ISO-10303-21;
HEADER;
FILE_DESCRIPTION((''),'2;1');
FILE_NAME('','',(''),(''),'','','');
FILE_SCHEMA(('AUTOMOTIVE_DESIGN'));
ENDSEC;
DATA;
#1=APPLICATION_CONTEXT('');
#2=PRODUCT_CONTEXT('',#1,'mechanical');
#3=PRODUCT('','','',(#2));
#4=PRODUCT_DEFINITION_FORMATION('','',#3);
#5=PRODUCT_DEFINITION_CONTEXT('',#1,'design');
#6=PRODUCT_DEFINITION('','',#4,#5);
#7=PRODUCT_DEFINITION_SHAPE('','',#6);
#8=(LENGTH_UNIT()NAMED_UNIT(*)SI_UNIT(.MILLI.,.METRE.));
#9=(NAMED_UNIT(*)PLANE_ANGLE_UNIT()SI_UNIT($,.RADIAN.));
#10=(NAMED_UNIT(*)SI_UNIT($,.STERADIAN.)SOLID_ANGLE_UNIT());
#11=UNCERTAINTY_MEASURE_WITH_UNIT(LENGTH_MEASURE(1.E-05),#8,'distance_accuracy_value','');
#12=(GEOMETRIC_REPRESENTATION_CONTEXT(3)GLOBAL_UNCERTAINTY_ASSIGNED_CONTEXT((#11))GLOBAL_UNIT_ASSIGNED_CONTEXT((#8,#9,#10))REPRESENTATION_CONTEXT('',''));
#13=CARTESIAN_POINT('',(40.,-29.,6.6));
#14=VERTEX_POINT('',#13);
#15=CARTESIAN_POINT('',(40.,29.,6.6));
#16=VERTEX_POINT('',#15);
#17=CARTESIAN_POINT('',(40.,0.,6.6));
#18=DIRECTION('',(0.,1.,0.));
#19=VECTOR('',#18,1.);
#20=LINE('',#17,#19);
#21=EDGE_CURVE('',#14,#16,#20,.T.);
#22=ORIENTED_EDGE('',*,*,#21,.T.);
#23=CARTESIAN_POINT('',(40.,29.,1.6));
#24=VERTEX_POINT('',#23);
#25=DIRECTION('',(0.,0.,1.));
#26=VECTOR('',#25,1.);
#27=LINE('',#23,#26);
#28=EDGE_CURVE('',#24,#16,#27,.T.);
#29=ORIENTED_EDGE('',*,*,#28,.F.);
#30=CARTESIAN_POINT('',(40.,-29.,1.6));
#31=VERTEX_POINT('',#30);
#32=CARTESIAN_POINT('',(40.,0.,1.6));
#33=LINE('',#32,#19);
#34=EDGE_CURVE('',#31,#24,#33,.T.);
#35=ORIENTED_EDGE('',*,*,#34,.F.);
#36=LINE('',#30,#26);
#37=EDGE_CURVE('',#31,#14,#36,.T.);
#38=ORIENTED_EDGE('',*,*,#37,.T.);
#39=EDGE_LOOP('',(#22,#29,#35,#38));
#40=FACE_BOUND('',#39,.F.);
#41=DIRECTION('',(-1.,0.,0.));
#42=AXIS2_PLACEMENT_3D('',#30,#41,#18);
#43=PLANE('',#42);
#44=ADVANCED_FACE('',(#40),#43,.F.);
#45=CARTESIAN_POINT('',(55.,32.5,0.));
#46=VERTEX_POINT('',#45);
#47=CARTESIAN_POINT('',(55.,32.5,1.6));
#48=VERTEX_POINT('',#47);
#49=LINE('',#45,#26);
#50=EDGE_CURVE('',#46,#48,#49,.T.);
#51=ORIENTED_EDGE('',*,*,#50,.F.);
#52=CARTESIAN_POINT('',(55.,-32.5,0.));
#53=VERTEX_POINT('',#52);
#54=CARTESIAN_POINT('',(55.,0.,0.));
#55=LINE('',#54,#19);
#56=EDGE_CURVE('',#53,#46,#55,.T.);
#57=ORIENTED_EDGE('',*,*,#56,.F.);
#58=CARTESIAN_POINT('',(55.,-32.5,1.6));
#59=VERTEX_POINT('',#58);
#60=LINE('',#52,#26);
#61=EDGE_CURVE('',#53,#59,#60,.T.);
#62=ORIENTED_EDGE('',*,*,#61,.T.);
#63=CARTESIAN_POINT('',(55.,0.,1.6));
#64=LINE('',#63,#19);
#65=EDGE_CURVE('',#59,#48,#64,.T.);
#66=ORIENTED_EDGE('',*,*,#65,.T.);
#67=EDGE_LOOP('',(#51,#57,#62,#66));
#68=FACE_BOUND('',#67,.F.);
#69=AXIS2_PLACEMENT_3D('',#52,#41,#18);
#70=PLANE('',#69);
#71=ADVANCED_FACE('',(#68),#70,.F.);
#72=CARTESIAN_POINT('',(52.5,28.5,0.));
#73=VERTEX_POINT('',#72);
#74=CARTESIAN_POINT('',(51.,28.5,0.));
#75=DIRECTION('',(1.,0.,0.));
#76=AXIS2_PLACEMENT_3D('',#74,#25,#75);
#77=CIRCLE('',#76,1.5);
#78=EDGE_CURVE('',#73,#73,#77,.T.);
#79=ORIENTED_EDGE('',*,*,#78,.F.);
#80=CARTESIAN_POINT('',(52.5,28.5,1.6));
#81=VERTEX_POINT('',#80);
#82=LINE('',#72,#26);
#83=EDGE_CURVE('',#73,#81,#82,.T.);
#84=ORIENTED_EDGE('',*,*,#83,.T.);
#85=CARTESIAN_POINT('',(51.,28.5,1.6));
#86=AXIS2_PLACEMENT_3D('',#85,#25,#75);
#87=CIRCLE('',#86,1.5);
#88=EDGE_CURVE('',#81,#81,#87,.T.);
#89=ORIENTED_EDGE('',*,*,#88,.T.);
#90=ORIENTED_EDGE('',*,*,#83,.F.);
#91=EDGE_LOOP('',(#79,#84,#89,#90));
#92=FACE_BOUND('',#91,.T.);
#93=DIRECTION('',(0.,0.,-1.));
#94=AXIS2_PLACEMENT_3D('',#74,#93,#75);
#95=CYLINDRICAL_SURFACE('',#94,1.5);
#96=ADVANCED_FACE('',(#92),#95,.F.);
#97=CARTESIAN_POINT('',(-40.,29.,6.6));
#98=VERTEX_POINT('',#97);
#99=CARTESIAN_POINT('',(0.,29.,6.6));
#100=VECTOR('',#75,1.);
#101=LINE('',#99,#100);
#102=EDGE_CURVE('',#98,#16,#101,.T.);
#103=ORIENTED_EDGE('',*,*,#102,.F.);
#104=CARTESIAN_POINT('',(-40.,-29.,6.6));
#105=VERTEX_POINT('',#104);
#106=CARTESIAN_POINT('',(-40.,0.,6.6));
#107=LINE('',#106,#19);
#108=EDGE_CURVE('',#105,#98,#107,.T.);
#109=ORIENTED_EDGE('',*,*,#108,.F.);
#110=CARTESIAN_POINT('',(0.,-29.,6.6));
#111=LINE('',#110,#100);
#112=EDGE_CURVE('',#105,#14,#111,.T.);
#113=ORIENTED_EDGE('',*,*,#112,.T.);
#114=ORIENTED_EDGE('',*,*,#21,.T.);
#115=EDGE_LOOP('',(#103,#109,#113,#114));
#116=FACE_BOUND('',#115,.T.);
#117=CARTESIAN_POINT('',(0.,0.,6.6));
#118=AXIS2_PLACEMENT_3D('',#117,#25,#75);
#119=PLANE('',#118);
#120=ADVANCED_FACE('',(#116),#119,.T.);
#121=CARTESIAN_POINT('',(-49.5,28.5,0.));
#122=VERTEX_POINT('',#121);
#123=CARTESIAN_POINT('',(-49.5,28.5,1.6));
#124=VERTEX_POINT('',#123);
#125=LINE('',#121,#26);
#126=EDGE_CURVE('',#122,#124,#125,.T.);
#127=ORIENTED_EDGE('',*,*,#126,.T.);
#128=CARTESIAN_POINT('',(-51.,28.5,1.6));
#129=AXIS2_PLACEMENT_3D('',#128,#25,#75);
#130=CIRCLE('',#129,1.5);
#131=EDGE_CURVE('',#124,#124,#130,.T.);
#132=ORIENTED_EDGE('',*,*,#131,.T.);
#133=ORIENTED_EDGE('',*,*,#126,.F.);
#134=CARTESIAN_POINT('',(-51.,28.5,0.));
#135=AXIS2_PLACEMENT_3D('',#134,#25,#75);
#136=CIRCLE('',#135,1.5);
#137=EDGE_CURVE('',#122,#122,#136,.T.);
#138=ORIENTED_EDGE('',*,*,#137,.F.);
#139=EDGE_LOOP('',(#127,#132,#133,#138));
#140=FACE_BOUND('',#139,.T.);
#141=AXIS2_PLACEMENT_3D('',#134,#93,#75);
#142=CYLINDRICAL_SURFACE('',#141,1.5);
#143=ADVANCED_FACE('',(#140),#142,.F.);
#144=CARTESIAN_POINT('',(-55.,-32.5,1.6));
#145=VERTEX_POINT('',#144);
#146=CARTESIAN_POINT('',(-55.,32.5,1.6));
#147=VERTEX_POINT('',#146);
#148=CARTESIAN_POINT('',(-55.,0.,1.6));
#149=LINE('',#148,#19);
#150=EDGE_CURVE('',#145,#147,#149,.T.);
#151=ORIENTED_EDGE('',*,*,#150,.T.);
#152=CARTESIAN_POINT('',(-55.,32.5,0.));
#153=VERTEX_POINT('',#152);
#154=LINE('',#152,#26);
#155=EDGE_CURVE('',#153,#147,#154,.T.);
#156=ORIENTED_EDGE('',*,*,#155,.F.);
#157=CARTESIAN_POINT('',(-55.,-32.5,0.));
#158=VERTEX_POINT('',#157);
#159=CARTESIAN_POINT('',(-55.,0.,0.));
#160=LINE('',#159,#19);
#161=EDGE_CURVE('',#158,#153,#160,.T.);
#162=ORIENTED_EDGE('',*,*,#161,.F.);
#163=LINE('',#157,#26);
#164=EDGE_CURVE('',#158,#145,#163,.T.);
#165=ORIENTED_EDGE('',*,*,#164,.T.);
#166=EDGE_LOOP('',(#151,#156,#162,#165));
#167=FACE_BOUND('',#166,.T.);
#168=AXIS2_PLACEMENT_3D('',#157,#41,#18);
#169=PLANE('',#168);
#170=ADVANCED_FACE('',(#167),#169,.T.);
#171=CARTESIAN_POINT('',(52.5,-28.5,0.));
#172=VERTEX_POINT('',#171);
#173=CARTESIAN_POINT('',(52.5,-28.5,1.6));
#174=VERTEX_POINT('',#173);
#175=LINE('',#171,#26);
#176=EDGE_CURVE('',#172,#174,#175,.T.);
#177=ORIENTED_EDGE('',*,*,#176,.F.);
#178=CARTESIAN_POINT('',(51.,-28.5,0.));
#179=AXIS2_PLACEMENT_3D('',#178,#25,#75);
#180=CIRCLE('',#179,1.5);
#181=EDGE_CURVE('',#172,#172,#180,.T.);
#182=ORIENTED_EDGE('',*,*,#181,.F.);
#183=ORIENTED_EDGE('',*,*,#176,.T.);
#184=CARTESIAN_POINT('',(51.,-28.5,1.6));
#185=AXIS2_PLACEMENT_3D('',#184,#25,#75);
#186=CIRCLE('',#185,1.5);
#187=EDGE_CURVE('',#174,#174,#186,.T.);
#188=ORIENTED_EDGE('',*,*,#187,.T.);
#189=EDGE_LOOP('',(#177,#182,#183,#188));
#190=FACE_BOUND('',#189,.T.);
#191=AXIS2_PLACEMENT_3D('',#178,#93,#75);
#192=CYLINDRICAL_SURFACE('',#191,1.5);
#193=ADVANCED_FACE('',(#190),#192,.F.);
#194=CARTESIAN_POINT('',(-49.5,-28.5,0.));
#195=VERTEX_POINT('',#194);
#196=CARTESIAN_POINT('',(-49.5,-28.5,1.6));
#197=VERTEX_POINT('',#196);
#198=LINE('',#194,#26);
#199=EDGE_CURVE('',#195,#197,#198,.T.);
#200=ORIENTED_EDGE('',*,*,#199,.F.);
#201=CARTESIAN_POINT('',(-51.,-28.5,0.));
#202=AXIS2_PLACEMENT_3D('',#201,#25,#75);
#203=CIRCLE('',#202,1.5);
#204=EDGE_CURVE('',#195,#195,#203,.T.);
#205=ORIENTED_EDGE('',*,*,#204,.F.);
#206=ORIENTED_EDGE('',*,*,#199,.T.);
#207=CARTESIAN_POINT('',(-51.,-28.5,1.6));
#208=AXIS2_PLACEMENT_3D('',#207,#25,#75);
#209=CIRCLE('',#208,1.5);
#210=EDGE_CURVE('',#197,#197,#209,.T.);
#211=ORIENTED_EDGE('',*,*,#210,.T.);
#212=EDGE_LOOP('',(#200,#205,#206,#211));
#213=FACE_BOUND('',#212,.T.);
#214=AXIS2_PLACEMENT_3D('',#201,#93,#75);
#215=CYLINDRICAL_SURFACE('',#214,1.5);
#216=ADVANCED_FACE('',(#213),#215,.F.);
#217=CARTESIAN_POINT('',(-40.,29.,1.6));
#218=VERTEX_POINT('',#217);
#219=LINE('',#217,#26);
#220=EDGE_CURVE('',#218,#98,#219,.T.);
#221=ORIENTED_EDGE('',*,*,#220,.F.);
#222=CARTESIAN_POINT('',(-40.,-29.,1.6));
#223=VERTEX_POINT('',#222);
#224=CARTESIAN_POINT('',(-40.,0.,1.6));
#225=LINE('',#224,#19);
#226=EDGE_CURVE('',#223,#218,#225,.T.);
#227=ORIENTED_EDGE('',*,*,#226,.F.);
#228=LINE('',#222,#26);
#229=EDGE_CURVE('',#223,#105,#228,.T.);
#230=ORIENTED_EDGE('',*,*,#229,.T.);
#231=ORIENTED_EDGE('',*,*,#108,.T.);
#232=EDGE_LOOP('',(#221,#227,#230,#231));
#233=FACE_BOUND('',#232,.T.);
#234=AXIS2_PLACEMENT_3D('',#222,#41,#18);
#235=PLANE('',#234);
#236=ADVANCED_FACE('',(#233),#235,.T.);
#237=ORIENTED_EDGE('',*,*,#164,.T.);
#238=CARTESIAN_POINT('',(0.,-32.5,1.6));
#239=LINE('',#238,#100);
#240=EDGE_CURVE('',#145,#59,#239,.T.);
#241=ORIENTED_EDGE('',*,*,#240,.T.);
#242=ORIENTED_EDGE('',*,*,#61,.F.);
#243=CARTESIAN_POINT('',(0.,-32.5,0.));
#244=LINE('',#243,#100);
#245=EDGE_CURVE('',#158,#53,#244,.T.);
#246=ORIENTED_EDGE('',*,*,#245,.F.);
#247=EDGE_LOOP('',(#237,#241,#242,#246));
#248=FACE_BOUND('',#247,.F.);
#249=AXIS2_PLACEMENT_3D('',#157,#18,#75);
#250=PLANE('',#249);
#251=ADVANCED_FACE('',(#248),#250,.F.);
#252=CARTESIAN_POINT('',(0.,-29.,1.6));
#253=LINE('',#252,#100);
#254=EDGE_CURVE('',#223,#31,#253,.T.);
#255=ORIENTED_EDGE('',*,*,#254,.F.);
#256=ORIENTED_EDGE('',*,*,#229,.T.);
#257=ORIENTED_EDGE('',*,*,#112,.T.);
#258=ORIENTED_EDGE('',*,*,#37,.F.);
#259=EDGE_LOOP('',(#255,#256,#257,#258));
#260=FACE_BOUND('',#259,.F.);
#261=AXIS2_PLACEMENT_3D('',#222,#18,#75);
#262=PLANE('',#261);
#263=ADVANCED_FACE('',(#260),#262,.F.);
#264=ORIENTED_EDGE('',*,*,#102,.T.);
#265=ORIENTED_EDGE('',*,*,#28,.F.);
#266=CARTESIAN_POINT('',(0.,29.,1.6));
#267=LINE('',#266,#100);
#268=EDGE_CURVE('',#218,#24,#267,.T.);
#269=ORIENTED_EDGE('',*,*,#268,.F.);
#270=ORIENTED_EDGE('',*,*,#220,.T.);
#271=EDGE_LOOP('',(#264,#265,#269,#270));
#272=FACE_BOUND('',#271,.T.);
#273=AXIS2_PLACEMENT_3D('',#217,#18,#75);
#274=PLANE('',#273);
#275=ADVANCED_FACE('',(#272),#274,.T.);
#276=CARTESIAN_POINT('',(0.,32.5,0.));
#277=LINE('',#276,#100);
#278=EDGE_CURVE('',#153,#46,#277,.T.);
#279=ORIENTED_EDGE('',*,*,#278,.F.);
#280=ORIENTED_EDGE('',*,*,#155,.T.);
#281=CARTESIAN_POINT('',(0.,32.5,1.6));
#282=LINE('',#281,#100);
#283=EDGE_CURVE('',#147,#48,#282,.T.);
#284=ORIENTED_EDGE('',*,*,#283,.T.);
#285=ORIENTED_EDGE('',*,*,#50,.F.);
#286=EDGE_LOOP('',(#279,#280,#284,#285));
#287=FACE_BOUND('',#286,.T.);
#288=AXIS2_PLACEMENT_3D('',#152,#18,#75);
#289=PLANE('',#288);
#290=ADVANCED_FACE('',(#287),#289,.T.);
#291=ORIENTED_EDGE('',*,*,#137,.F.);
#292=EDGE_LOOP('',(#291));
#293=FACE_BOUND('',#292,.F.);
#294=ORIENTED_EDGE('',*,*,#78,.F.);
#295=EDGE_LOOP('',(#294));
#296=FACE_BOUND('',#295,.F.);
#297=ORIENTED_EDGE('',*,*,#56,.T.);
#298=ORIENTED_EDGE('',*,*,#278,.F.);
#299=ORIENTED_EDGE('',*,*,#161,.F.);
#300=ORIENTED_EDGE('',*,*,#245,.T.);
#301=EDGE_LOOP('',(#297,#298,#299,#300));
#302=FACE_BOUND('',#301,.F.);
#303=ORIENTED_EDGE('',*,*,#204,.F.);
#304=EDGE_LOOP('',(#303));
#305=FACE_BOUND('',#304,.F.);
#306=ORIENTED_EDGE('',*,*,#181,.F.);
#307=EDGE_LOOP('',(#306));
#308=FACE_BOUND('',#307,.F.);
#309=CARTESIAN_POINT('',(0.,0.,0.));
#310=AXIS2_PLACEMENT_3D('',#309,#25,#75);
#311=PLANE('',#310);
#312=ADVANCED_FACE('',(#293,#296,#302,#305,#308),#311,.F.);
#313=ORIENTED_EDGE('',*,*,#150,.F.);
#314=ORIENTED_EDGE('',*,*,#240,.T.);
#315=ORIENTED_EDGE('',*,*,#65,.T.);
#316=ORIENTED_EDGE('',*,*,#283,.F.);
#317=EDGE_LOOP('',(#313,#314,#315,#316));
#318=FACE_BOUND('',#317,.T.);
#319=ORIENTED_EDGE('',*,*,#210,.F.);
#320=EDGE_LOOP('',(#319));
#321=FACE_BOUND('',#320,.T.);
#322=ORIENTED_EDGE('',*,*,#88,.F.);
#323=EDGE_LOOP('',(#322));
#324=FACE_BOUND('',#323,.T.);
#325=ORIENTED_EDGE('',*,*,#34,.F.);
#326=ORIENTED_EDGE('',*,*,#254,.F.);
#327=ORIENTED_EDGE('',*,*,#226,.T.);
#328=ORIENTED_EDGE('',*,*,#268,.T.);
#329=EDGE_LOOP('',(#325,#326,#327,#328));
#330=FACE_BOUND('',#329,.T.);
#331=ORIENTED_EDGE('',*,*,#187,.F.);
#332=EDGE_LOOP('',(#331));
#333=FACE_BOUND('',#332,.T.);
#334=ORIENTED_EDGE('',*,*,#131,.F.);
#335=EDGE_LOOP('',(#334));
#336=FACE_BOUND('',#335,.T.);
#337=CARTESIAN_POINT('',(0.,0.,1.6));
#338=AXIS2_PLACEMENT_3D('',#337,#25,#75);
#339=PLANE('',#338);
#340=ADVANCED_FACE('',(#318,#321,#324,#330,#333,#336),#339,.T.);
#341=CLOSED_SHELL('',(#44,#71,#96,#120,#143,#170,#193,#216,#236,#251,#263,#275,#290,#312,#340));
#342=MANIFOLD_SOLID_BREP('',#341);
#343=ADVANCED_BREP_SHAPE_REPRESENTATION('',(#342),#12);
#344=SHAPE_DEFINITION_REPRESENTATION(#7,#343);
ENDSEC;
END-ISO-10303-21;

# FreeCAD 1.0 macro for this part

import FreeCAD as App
import Part
import Sketcher

V = App.Vector
Q = App.Units.Quantity


def add_polygon(sketch, points):
    """Adds a closed chain of lines whose ends are joined by coincident constraints."""
    first, n = sketch.GeometryCount, len(points)
    for a, b in zip(points, points[1:] + points[:1]):
        sketch.addGeometry(Part.LineSegment(App.Vector(*a, 0), App.Vector(*b, 0)), False)
    for i in range(n):
        sketch.addConstraint(Sketcher.Constraint("Coincident", first + i, 2, first + (i + 1) % n, 1))

doc = App.newDocument("Part")
body = doc.addObject("PartDesign::Body", "Body")

# Sketch on XY plane
sketch1 = body.newObject("Sketcher::SketchObject", "Sketch")
sketch1.AttachmentSupport = (doc.getObject("XY_Plane"), [""])
sketch1.MapMode = "FlatFace"
add_polygon(sketch1, [(-55, 32.5), (-55, -32.5), (55, -32.5), (55, 32.5)])  # lines 0-3
sketch1.addGeometry(Part.Circle(V(-51, -28.5, 0), V(0, 0, 1), 1.5), False)  # 4
sketch1.addGeometry(Part.Circle(V(51, -28.5, 0), V(0, 0, 1), 1.5), False)  # 5
sketch1.addGeometry(Part.Circle(V(-51, 28.5, 0), V(0, 0, 1), 1.5), False)  # 6
sketch1.addGeometry(Part.Circle(V(51, 28.5, 0), V(0, 0, 1), 1.5), False)  # 7
sketch1.addConstraint([
    Sketcher.Constraint("Vertical", 0),
    Sketcher.Constraint("Horizontal", 1),
    Sketcher.Constraint("Vertical", 2),
    Sketcher.Constraint("Horizontal", 3),
    Sketcher.Constraint("Equal", 4, 5),
    Sketcher.Constraint("Equal", 5, 6),
    Sketcher.Constraint("Equal", 6, 7),
    Sketcher.Constraint("Symmetric", 5, 3, 6, 3, -1, 1),
    Sketcher.Constraint("Symmetric", 4, 3, 7, 3, -1, 1),
    Sketcher.Constraint("Symmetric", 0, 2, 2, 2, -1, 1),
    Sketcher.Constraint("Symmetric", 4, 3, 5, 3, -2),
    Sketcher.Constraint("Diameter", 4, Q("3 mm")),
    Sketcher.Constraint("DistanceX", 1, 1, 1, 2, Q("110 mm")),
    Sketcher.Constraint("DistanceY", 0, 2, 0, 1, Q("65 mm")),
    Sketcher.Constraint("DistanceX", 4, 3, -1, 1, Q("51 mm")),
    Sketcher.Constraint("DistanceY", 4, 3, 6, 3, Q("57 mm")),
])
pad1 = body.newObject("PartDesign::Pad", "Pad")
pad1.Profile = sketch1
pad1.Length = 1.6

# Sketch on XY plane
sketch2 = body.newObject("Sketcher::SketchObject", "Sketch001")
sketch2.AttachmentSupport = (doc.getObject("XY_Plane"), [""])
sketch2.MapMode = "FlatFace"
sketch2.AttachmentOffset = App.Placement(V(0, 0, 1.6), App.Rotation())
add_polygon(sketch2, [(-40, 29), (-40, -29), (40, -29), (40, 29)])  # lines 0-3
sketch2.addConstraint([
    Sketcher.Constraint("Vertical", 0),
    Sketcher.Constraint("Horizontal", 1),
    Sketcher.Constraint("Vertical", 2),
    Sketcher.Constraint("Horizontal", 3),
    Sketcher.Constraint("Symmetric", 0, 2, 2, 2, -1, 1),
    Sketcher.Constraint("DistanceX", 1, 1, 1, 2, Q("80 mm")),
    Sketcher.Constraint("DistanceY", 0, 2, 0, 1, Q("58 mm")),
])
pad2 = body.newObject("PartDesign::Pad", "Pad001")
pad2.Profile = sketch2
pad2.Length = 5

doc.recompute()
